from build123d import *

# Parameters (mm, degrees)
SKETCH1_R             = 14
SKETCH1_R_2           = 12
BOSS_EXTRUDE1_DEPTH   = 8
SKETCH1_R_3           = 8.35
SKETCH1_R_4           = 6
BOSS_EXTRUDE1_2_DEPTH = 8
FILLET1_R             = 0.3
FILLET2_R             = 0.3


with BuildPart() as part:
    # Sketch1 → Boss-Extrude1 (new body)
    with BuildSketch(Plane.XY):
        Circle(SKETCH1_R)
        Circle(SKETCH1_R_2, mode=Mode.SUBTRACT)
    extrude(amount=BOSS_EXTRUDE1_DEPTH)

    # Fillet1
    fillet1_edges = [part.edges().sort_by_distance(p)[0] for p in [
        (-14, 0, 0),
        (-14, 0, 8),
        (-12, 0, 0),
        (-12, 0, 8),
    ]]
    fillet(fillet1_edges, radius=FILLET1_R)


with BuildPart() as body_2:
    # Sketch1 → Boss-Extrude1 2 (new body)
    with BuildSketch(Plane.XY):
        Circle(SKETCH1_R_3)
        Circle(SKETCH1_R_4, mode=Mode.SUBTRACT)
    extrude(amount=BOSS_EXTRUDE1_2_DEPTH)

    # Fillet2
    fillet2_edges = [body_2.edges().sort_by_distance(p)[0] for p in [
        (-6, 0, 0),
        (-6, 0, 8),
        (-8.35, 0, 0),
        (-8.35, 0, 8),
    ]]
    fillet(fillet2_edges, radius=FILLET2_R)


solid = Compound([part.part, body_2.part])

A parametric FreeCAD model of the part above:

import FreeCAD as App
import Part
import Sketcher

V = App.Vector


def edges_at(feature, points):
    """Names of the edges that pass closest to the given points."""
    edges = feature.Shape.Edges
    near = lambda p: min(range(len(edges)), key=lambda i: edges[i].distToShape(Part.Vertex(*p))[0])
    return sorted({f"Edge{near(p) + 1}" for p in points})

doc = App.newDocument("Part")
body = doc.addObject("PartDesign::Body", "Body")

# Sketch on XY plane
sketch1 = body.newObject("Sketcher::SketchObject", "Sketch")
sketch1.AttachmentSupport = (doc.getObject("XY_Plane"), [""])
sketch1.MapMode = "FlatFace"
sketch1.addGeometry([
    Part.Circle(V(0, 0, 0), V(0, 0, 1), 14),
    Part.Circle(V(0, 0, 0), V(0, 0, 1), 12),
], False)
sketch1.addConstraint([
    Sketcher.Constraint("Coincident", 0, 3, -1, 1),
    Sketcher.Constraint("Coincident", 1, 3, -1, 1),
    Sketcher.Constraint("Diameter", 0, 28.0),
    Sketcher.Constraint("Diameter", 1, 24.0),
])
pad1 = body.newObject("PartDesign::Pad", "Pad")
pad1.Profile = sketch1
pad1.Length = 8
doc.recompute()

fillet = body.newObject("PartDesign::Fillet", "Fillet")
fillet.Base = (pad1, edges_at(pad1, [
    (-14, 0, 0),
    (-14, 0, 8),
    (-12, 0, 0),
    (-12, 0, 8),
]))
fillet.Radius = 0.3
body2 = doc.addObject("PartDesign::Body", "Body001")

# Sketch on XY plane
sketch2 = body2.newObject("Sketcher::SketchObject", "Sketch001")
sketch2.AttachmentSupport = (doc.getObject("XY_Plane001"), [""])
sketch2.MapMode = "FlatFace"
sketch2.addGeometry([
    Part.Circle(V(0, 0, 0), V(0, 0, 1), 8),
    Part.Circle(V(0, 0, 0), V(0, 0, 1), 6),
], False)
sketch2.addConstraint([
    Sketcher.Constraint("Coincident", 0, 3, -1, 1),
    Sketcher.Constraint("Coincident", 1, 3, -1, 1),
    Sketcher.Constraint("Diameter", 1, 12.0),
    Sketcher.Constraint("Diameter", 0, 16.7),
])
pad2 = body2.newObject("PartDesign::Pad", "Pad001")
pad2.Profile = sketch2
pad2.Length = 8
doc.recompute()

fillet2 = body2.newObject("PartDesign::Fillet", "Fillet001")
fillet2.Base = (pad2, edges_at(pad2, [
    (-6, 0, 0),
    (-6, 0, 8),
    (-8.35, 0, 0),
    (-8.35, 0, 8),
]))
fillet2.Radius = 0.3

doc.recompute()
